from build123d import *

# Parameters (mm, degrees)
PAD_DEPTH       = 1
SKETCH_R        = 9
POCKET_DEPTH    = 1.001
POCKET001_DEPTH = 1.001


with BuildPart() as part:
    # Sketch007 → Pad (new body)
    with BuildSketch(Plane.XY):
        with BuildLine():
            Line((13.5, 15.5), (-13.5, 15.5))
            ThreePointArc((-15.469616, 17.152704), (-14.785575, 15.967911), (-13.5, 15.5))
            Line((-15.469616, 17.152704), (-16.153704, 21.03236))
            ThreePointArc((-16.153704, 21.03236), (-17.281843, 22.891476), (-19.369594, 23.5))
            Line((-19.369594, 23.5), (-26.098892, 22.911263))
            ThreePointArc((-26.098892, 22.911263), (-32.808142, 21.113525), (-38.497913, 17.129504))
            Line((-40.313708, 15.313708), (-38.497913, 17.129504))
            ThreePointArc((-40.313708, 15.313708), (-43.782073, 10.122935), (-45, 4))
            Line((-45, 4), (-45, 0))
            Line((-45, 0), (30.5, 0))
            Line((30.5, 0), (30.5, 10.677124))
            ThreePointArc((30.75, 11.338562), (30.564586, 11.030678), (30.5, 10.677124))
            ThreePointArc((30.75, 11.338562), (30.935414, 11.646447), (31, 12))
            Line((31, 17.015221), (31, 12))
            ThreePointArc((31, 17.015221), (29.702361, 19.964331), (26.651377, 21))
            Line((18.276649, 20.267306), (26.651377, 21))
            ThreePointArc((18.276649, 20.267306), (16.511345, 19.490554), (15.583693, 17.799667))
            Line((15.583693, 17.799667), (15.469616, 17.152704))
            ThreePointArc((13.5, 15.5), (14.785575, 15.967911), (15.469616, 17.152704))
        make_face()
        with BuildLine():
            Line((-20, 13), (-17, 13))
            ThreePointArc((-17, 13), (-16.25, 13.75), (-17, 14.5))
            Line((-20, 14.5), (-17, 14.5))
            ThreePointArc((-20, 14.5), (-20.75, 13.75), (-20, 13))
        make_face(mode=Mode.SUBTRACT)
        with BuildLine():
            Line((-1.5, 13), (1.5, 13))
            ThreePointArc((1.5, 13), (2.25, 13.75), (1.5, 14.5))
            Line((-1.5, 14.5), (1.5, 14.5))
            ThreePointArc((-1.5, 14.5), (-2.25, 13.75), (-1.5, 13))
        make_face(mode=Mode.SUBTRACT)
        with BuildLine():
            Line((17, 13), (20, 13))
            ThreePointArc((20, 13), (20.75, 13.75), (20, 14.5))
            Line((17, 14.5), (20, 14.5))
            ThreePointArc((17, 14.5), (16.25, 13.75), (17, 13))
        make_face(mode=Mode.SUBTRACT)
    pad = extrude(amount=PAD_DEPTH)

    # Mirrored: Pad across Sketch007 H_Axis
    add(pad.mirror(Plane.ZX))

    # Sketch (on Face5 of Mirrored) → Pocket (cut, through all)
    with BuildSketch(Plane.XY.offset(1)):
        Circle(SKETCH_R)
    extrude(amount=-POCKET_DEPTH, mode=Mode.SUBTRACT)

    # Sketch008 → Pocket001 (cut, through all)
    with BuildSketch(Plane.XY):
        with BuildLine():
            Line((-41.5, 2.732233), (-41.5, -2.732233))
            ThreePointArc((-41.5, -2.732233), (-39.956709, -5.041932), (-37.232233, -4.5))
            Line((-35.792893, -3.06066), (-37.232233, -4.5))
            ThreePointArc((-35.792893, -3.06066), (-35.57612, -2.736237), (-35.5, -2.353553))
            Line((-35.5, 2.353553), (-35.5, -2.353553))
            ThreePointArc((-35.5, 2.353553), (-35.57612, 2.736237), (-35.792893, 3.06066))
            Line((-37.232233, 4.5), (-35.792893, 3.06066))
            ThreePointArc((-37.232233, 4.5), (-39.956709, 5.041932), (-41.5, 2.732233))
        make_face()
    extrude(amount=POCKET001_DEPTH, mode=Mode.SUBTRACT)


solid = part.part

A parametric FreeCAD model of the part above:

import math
import FreeCAD as App
import Part
import Sketcher
from FreeCAD import Vector
Q = App.Units.Quantity

doc = App.newDocument("Part")
body = doc.addObject("PartDesign::Body", "Body")

# Sketch on XY plane
sketch1 = body.newObject("Sketcher::SketchObject", "Sketch")
sketch1.AttachmentSupport = (doc.getObject("XY_Plane"), [""])
sketch1.MapMode = "FlatFace"
sketch1.addGeometry(Part.LineSegment(Vector(13.5, 15.5, 0), Vector(-13.5, 15.5, 0)), False)
sketch1.addGeometry(Part.ArcOfCircle(Part.Circle(Vector(-13.5, 17.5, 0), Vector(0, 0, 1), 2), math.radians(-170), math.radians(-90)), False)
sketch1.addGeometry(Part.LineSegment(Vector(-15.5, 17.2, 0), Vector(-16.2, 21, 0)), False)
sketch1.addGeometry(Part.ArcOfCircle(Part.Circle(Vector(-19.1, 20.5, 0), Vector(0, 0, 1), 3), math.radians(10), math.radians(95)), False)
sketch1.addGeometry(Part.LineSegment(Vector(-19.4, 23.5, 0), Vector(-26.1, 22.9, 0)), False)
sketch1.addGeometry(Part.ArcOfCircle(Part.Circle(Vector(-24.4, 3, 0), Vector(0, 0, 1), 20), math.radians(95), math.radians(135)), False)
sketch1.addGeometry(Part.LineSegment(Vector(-38.5, 17.1, 0), Vector(-40.3, 15.3, 0)), False)
sketch1.addGeometry(Part.ArcOfCircle(Part.Circle(Vector(-29, 4, 0), Vector(0, 0, 1), 16), math.radians(135), math.radians(180)), False)
sketch1.addGeometry(Part.LineSegment(Vector(-45, 4, 0), Vector(-45, 0, 0)), False)
sketch1.addGeometry(Part.LineSegment(Vector(-45, 0, 0), Vector(30.5, 0, 0)), False)
sketch1.addGeometry(Part.LineSegment(Vector(30.5, 0, 0), Vector(30.5, 10.7, 0)), False)
sketch1.addGeometry(Part.ArcOfCircle(Part.Circle(Vector(31.5, 10.7, 0), Vector(0, 0, 1), 1), math.radians(139), math.radians(180)), False)
sketch1.addGeometry(Part.ArcOfCircle(Part.Circle(Vector(30, 12, 0), Vector(0, 0, 1), 1), math.radians(-41), math.radians(0)), False)
sketch1.addGeometry(Part.LineSegment(Vector(31, 12, 0), Vector(31, 17, 0)), False)
sketch1.addGeometry(Part.ArcOfCircle(Part.Circle(Vector(27, 17, 0), Vector(0, 0, 1), 4), math.radians(0), math.radians(95)), False)
sketch1.addGeometry(Part.LineSegment(Vector(26.7, 21, 0), Vector(18.3, 20.3, 0)), False)
sketch1.addGeometry(Part.ArcOfCircle(Part.Circle(Vector(18.5, 17.3, 0), Vector(0, 0, 1), 3), math.radians(95), math.radians(170)), False)
sketch1.addGeometry(Part.LineSegment(Vector(15.6, 17.8, 0), Vector(15.5, 17.2, 0)), False)
sketch1.addGeometry(Part.ArcOfCircle(Part.Circle(Vector(13.5, 17.5, 0), Vector(0, 0, 1), 2), math.radians(-90), math.radians(-10)), False)
sketch1.addGeometry(Part.LineSegment(Vector(-17, 13, 0), Vector(-20, 13, 0)), False)
sketch1.addGeometry(Part.ArcOfCircle(Part.Circle(Vector(-20, 13.8, 0), Vector(0, 0, 1), 0.8), math.radians(90), math.radians(270)), False)
sketch1.addGeometry(Part.LineSegment(Vector(-20, 14.5, 0), Vector(-17, 14.5, 0)), False)
sketch1.addGeometry(Part.ArcOfCircle(Part.Circle(Vector(-17, 13.8, 0), Vector(0, 0, 1), 0.8), math.radians(-90), math.radians(90)), False)
sketch1.addGeometry(Part.LineSegment(Vector(1.5, 13, 0), Vector(-1.5, 13, 0)), False)
sketch1.addGeometry(Part.ArcOfCircle(Part.Circle(Vector(-1.5, 13.8, 0), Vector(0, 0, 1), 0.8), math.radians(90), math.radians(270)), False)
sketch1.addGeometry(Part.LineSegment(Vector(-1.5, 14.5, 0), Vector(1.5, 14.5, 0)), False)
sketch1.addGeometry(Part.ArcOfCircle(Part.Circle(Vector(1.5, 13.8, 0), Vector(0, 0, 1), 0.8), math.radians(-90), math.radians(90)), False)
sketch1.addGeometry(Part.LineSegment(Vector(20, 13, 0), Vector(17, 13, 0)), False)
sketch1.addGeometry(Part.ArcOfCircle(Part.Circle(Vector(17, 13.8, 0), Vector(0, 0, 1), 0.8), math.radians(90), math.radians(270)), False)
sketch1.addGeometry(Part.LineSegment(Vector(17, 14.5, 0), Vector(20, 14.5, 0)), False)
sketch1.addGeometry(Part.ArcOfCircle(Part.Circle(Vector(20, 13.8, 0), Vector(0, 0, 1), 0.8), math.radians(-90), math.radians(90)), False)
sketch1.addConstraint(Sketcher.Constraint("Tangent", 0, 2, 1, 2))
sketch1.addConstraint(Sketcher.Constraint("Tangent", 1, 1, 2, 1))
sketch1.addConstraint(Sketcher.Constraint("Tangent", 2, 2, 3, 1))
sketch1.addConstraint(Sketcher.Constraint("Tangent", 3, 2, 4, 1))
sketch1.addConstraint(Sketcher.Constraint("Tangent", 4, 2, 5, 1))
sketch1.addConstraint(Sketcher.Constraint("Tangent", 5, 2, 6, 1))
sketch1.addConstraint(Sketcher.Constraint("Tangent", 6, 2, 7, 1))
sketch1.addConstraint(Sketcher.Constraint("Tangent", 7, 2, 8, 1))
sketch1.addConstraint(Sketcher.Constraint("Coincident", 8, 2, 9, 1))
sketch1.addConstraint(Sketcher.Constraint("Coincident", 9, 2, 10, 1))
sketch1.addConstraint(Sketcher.Constraint("Tangent", 10, 2, 11, 2))
sketch1.addConstraint(Sketcher.Constraint("Tangent", 11, 1, 12, 1))
sketch1.addConstraint(Sketcher.Constraint("Coincident", 12, 2, 13, 1))
sketch1.addConstraint(Sketcher.Constraint("Tangent", 13, 2, 14, 1))
sketch1.addConstraint(Sketcher.Constraint("Tangent", 14, 2, 15, 1))
sketch1.addConstraint(Sketcher.Constraint("Tangent", 15, 2, 16, 1))
sketch1.addConstraint(Sketcher.Constraint("Tangent", 16, 2, 17, 1))
sketch1.addConstraint(Sketcher.Constraint("Tangent", 17, 2, 18, 2))
sketch1.addConstraint(Sketcher.Constraint("Tangent", 18, 1, 0, 1))
sketch1.addConstraint(Sketcher.Constraint("Tangent", 19, 2, 20, 2))
sketch1.addConstraint(Sketcher.Constraint("Tangent", 20, 1, 21, 1))
sketch1.addConstraint(Sketcher.Constraint("Tangent", 21, 2, 22, 2))
sketch1.addConstraint(Sketcher.Constraint("Tangent", 22, 1, 19, 1))
sketch1.addConstraint(Sketcher.Constraint("Tangent", 23, 2, 24, 2))
sketch1.addConstraint(Sketcher.Constraint("Tangent", 24, 1, 25, 1))
sketch1.addConstraint(Sketcher.Constraint("Tangent", 25, 2, 26, 2))
sketch1.addConstraint(Sketcher.Constraint("Tangent", 26, 1, 23, 1))
sketch1.addConstraint(Sketcher.Constraint("Tangent", 27, 2, 28, 2))
sketch1.addConstraint(Sketcher.Constraint("Tangent", 28, 1, 29, 1))
sketch1.addConstraint(Sketcher.Constraint("Tangent", 29, 2, 30, 2))
sketch1.addConstraint(Sketcher.Constraint("Tangent", 30, 1, 27, 1))
sketch1.addConstraint(Sketcher.Constraint("Horizontal", 0))
sketch1.addConstraint(Sketcher.Constraint("Vertical", 8))
sketch1.addConstraint(Sketcher.Constraint("Horizontal", 9))
sketch1.addConstraint(Sketcher.Constraint("Vertical", 10))
sketch1.addConstraint(Sketcher.Constraint("Vertical", 13))
sketch1.addConstraint(Sketcher.Constraint("Horizontal", 19))
sketch1.addConstraint(Sketcher.Constraint("Horizontal", 21))
sketch1.addConstraint(Sketcher.Constraint("Horizontal", 23))
sketch1.addConstraint(Sketcher.Constraint("Horizontal", 25))
sketch1.addConstraint(Sketcher.Constraint("Horizontal", 27))
sketch1.addConstraint(Sketcher.Constraint("Horizontal", 29))
sketch1.addConstraint(Sketcher.Constraint("Equal", 3, 16))
sketch1.addConstraint(Sketcher.Constraint("Equal", 1, 18))
sketch1.addConstraint(Sketcher.Constraint("Equal", 22, 24))
sketch1.addConstraint(Sketcher.Constraint("Equal", 26, 28))
sketch1.addConstraint(Sketcher.Constraint("Symmetric", 22, 3, 28, 3, -2))
sketch1.addConstraint(Sketcher.Constraint("Symmetric", 1, 1, 17, 2, -2))
sketch1.addConstraint(Sketcher.Constraint("PointOnObject", 8, 2, -1))
sketch1.addConstraint(Sketcher.Constraint("Parallel", 4, 15))
sketch1.addConstraint(Sketcher.Constraint("Horizontal", 22, 3, 24, 3))
sketch1.addConstraint(Sketcher.Constraint("Equal", 21, 23))
sketch1.addConstraint(Sketcher.Constraint("Equal", 25, 27))
sketch1.addConstraint(Sketcher.Constraint("Radius", 1, 2.000001))
sketch1.addConstraint(Sketcher.Constraint("Radius", 3, 3.0))
sketch1.addConstraint(Sketcher.Constraint("Radius", 14, 3.999999))
sketch1.addConstraint(Sketcher.Constraint("DistanceX", 0, 2, 0, 1, 27.0))
sketch1.addConstraint(Sketcher.Constraint("DistanceX", 19, 2, 19, 1, 3.0))
sketch1.addConstraint(Sketcher.Constraint("DistanceY", 8, 2, 8, 1, 4.0))
sketch1.addConstraint(Sketcher.Constraint("Angle", 2, Q("100 deg")))
sketch1.addConstraint(Sketcher.Constraint("Angle", 4, Q("-175.000002 deg")))
sketch1.addConstraint(Sketcher.Constraint("Angle", 6, Q("-134.999984 deg")))
sketch1.addConstraint(Sketcher.Constraint("Radius", 20, 0.75))
sketch1.addConstraint(Sketcher.Constraint("DistanceX", 9, 1, 9, 2, 75.5))
sketch1.addConstraint(Sketcher.Constraint("DistanceX", -1, 1, 14, 3, 27.000001))
sketch1.addConstraint(Sketcher.Constraint("DistanceX", 20, 3, -1, 1, 20.0))
sketch1.addConstraint(Sketcher.Constraint("DistanceX", 7, 2, -1, 1, 45.0))
sketch1.addConstraint(Sketcher.Constraint("DistanceY", -1, 1, 12, 2, 12.0))
sketch1.addConstraint(Sketcher.Constraint("DistanceY", -1, 1, 14, 2, 21.0))
sketch1.addConstraint(Sketcher.Constraint("DistanceY", -1, 1, 19, 2, 13.0))
sketch1.addConstraint(Sketcher.Constraint("DistanceX", 1, 3, 11, 3, 45.000002))
sketch1.addConstraint(Sketcher.Constraint("DistanceY", 7, 3, 12, 3, 7.999999))
sketch1.addConstraint(Sketcher.Constraint("DistanceX", 1, 3, 24, 3, 12.0))
sketch1.addConstraint(Sketcher.Constraint("DistanceY", 1, 3, 3, 2, 5.999999))
sketch1.addConstraint(Sketcher.Constraint("DistanceY", 24, 1, 0, 2, 1.0))
sketch1.addConstraint(Sketcher.Constraint("DistanceX", -1, 1, 11, 1, 30.75))
sketch1.addConstraint(Sketcher.Constraint("Radius", 7, 15.99999))
sketch1.addConstraint(Sketcher.Constraint("Radius", 5, 19.999997))
pad1 = body.newObject("PartDesign::Pad", "Pad")
pad1.Profile = sketch1
pad1.Length = 1
doc.recompute()

mirrored = body.newObject("PartDesign::Mirrored", "Mirrored")
mirrored.Originals = [pad1]
mirrored.MirrorPlane = (doc.getObject("XZ_Plane"), [""])
body.Tip = mirrored

# Sketch on XY plane
sketch2 = body.newObject("Sketcher::SketchObject", "Sketch001")
sketch2.AttachmentSupport = (doc.getObject("XY_Plane"), [""])
sketch2.MapMode = "FlatFace"
sketch2.AttachmentOffset = App.Placement(Vector(0, 0, 1), App.Rotation())
sketch2.addGeometry(Part.Circle(Vector(0, 0, 0), Vector(0, 0, 1), 9), False)
sketch2.addConstraint(Sketcher.Constraint("Coincident", 0, 3, -1, 1))
sketch2.addConstraint(Sketcher.Constraint("Diameter", 0, 18.0))
pocket1 = body.newObject("PartDesign::Pocket", "Pocket")
pocket1.Profile = sketch2
pocket1.Type = "ThroughAll"

# Sketch on XY plane
sketch3 = body.newObject("Sketcher::SketchObject", "Sketch002")
sketch3.AttachmentSupport = (doc.getObject("XY_Plane"), [""])
sketch3.MapMode = "FlatFace"
sketch3.addGeometry(Part.LineSegment(Vector(-41.5, 2.7, 0), Vector(-41.5, -2.7, 0)), False)
sketch3.addGeometry(Part.ArcOfCircle(Part.Circle(Vector(-39, -2.7, 0), Vector(0, 0, 1), 2.5), math.radians(180), math.radians(315)), False)
sketch3.addGeometry(Part.LineSegment(Vector(-37.2, -4.5, 0), Vector(-35.8, -3.1, 0)), False)
sketch3.addGeometry(Part.ArcOfCircle(Part.Circle(Vector(-36.5, -2.4, 0), Vector(0, 0, 1), 1), math.radians(-45), math.radians(0)), False)
sketch3.addGeometry(Part.LineSegment(Vector(-35.5, -2.4, 0), Vector(-35.5, 2.4, 0)), False)
sketch3.addGeometry(Part.ArcOfCircle(Part.Circle(Vector(-36.5, 2.4, 0), Vector(0, 0, 1), 1), math.radians(0), math.radians(45)), False)
sketch3.addGeometry(Part.LineSegment(Vector(-35.8, 3.1, 0), Vector(-37.2, 4.5, 0)), False)
sketch3.addGeometry(Part.ArcOfCircle(Part.Circle(Vector(-39, 2.7, 0), Vector(0, 0, 1), 2.5), math.radians(45), math.radians(180)), False)
sketch3.addConstraint(Sketcher.Constraint("Tangent", 0, 2, 1, 1))
sketch3.addConstraint(Sketcher.Constraint("Tangent", 1, 2, 2, 1))
sketch3.addConstraint(Sketcher.Constraint("Coincident", 2, 2, 3, 1))
sketch3.addConstraint(Sketcher.Constraint("Coincident", 3, 2, 4, 1))
sketch3.addConstraint(Sketcher.Constraint("Coincident", 4, 2, 5, 1))
sketch3.addConstraint(Sketcher.Constraint("Coincident", 5, 2, 6, 1))
sketch3.addConstraint(Sketcher.Constraint("Tangent", 6, 2, 7, 1))
sketch3.addConstraint(Sketcher.Constraint("Tangent", 7, 2, 0, 1))
sketch3.addConstraint(Sketcher.Constraint("Vertical", 0))
sketch3.addConstraint(Sketcher.Constraint("Vertical", 4))
sketch3.addConstraint(Sketcher.Constraint("Equal", 3, 5))
sketch3.addConstraint(Sketcher.Constraint("Equal", 1, 7))
sketch3.addConstraint(Sketcher.Constraint("Symmetric", 2, 2, 5, 2, -1))
sketch3.addConstraint(Sketcher.Constraint("Perpendicular", 2, 6))
sketch3.addConstraint(Sketcher.Constraint("Vertical", 1, 2, 6, 2))
sketch3.addConstraint(Sketcher.Constraint("Radius", 1, 2.5))
sketch3.addConstraint(Sketcher.Constraint("DistanceX", 1, 3, -1, 1, 39.0))
sketch3.addConstraint(Sketcher.Constraint("DistanceY", 1, 2, -1, 1, 4.5))
sketch3.addConstraint(Sketcher.Constraint("DistanceX", 3, 2, -1, 1, 35.5))
sketch3.addConstraint(Sketcher.Constraint("Radius", 3, 0.999994))
sketch3.addConstraint(Sketcher.Constraint("DistanceX", 3, 3, 2, 2, 0.707101))
sketch3.addConstraint(Sketcher.Constraint("DistanceY", 4, 1, 4, 2, 4.707106))
sketch3.addConstraint(Sketcher.Constraint("DistanceY", 1, 3, 3, 2, 0.37868))
pocket2 = body.newObject("PartDesign::Pocket", "Pocket001")
pocket2.Profile = sketch3
pocket2.Type = "ThroughAll"
pocket2.Reversed = True

doc.recompute()
